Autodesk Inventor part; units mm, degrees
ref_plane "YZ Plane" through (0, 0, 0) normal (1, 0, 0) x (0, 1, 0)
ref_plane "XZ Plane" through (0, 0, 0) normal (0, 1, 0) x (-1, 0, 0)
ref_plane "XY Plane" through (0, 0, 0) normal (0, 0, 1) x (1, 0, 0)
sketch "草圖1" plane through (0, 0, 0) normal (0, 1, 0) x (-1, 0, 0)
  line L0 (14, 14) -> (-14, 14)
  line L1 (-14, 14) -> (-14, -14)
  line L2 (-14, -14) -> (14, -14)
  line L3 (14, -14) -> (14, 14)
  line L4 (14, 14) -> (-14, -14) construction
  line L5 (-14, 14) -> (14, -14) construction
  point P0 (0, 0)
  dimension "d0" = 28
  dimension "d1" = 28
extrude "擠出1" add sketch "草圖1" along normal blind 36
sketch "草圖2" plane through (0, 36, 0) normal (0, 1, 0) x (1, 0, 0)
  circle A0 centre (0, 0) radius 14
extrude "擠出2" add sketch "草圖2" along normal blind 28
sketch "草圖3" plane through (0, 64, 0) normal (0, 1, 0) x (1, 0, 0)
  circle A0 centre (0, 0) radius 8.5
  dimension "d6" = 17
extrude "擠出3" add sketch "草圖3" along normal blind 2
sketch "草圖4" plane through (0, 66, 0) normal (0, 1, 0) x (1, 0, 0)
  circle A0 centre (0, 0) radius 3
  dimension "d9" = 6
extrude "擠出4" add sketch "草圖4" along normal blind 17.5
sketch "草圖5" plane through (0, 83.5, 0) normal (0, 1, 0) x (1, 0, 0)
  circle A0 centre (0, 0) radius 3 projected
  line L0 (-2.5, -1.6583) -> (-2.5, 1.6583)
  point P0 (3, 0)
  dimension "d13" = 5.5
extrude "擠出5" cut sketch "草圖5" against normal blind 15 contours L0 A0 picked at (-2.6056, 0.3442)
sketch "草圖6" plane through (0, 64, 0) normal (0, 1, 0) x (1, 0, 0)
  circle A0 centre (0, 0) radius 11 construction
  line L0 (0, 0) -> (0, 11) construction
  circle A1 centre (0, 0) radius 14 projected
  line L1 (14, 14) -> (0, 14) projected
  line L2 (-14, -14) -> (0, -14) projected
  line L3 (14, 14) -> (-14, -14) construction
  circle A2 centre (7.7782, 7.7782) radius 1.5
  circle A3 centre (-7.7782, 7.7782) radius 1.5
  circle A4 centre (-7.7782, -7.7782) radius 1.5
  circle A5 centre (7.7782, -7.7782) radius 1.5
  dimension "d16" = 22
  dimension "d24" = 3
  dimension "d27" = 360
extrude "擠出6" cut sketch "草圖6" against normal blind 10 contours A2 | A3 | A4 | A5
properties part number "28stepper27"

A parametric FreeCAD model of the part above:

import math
import FreeCAD as App
import Part
import Sketcher
from FreeCAD import Vector
Q = App.Units.Quantity

doc = App.newDocument("Part")
body = doc.addObject("PartDesign::Body", "Body")

# Sketch on XZ plane
sketch1 = doc.addObject("Sketcher::SketchObject", "Sketch")
body.addObject(sketch1)
sketch1.AttachmentSupport = (doc.XZ_Plane, [""])
sketch1.MapMode = "FlatFace"
sketch1.addGeometry([
    Part.LineSegment(Vector(-14, -14, 0), Vector(-14, 14, 0)),
    Part.LineSegment(Vector(-14, 14, 0), Vector(14, 14, 0)),
    Part.LineSegment(Vector(14, 14, 0), Vector(14, -14, 0)),
    Part.LineSegment(Vector(14, -14, 0), Vector(-14, -14, 0)),
], False)
sketch1.addConstraint([
    Sketcher.Constraint("Coincident", 0, 2, 1, 1),
    Sketcher.Constraint("Coincident", 1, 2, 2, 1),
    Sketcher.Constraint("Coincident", 2, 2, 3, 1),
    Sketcher.Constraint("Coincident", 3, 2, 0, 1),
    Sketcher.Constraint("Vertical", 0),
    Sketcher.Constraint("Horizontal", 1),
    Sketcher.Constraint("Vertical", 2),
    Sketcher.Constraint("Horizontal", 3),
    Sketcher.Constraint("Symmetric", 0, 2, 2, 2, -1, 1),
    Sketcher.Constraint("Equal", 3, 0),
    Sketcher.Constraint("DistanceX", 1, 1, 1, 2, Q("28 mm")),
])
pad1 = doc.addObject("PartDesign::Pad", "Pad")
body.addObject(pad1)
pad1.Profile = sketch1
pad1.Length = 36
pad1.Reversed = True

# Sketch on XZ plane
sketch2 = doc.addObject("Sketcher::SketchObject", "Sketch001")
body.addObject(sketch2)
sketch2.AttachmentSupport = (doc.XZ_Plane, [""])
sketch2.MapMode = "FlatFace"
sketch2.AttachmentOffset = App.Placement(Vector(0, 0, -36), App.Rotation())
sketch2.addGeometry(Part.Circle(Vector(0, 0, 0), Vector(0, 0, 1), 14), False)
sketch2.addConstraint([
    Sketcher.Constraint("Coincident", 0, 3, -1, 1),
    Sketcher.Constraint("Diameter", 0, Q("28 mm")),
])
pad2 = doc.addObject("PartDesign::Pad", "Pad001")
body.addObject(pad2)
pad2.Profile = sketch2
pad2.Length = 28
pad2.Reversed = True

# Sketch on XZ plane
sketch3 = doc.addObject("Sketcher::SketchObject", "Sketch002")
body.addObject(sketch3)
sketch3.AttachmentSupport = (doc.XZ_Plane, [""])
sketch3.MapMode = "FlatFace"
sketch3.AttachmentOffset = App.Placement(Vector(0, 0, -64), App.Rotation())
sketch3.addGeometry(Part.Circle(Vector(0, 0, 0), Vector(0, 0, 1), 8), False)
sketch3.addConstraint([
    Sketcher.Constraint("Coincident", 0, 3, -1, 1),
    Sketcher.Constraint("Diameter", 0, Q("17 mm")),
])
pad3 = doc.addObject("PartDesign::Pad", "Pad002")
body.addObject(pad3)
pad3.Profile = sketch3
pad3.Length = 2
pad3.Reversed = True

# Sketch on XZ plane
sketch4 = doc.addObject("Sketcher::SketchObject", "Sketch003")
body.addObject(sketch4)
sketch4.AttachmentSupport = (doc.XZ_Plane, [""])
sketch4.MapMode = "FlatFace"
sketch4.AttachmentOffset = App.Placement(Vector(0, 0, -66), App.Rotation())
sketch4.addGeometry(Part.Circle(Vector(0, 0, 0), Vector(0, 0, 1), 3), False)
sketch4.addConstraint([
    Sketcher.Constraint("Coincident", 0, 3, -1, 1),
    Sketcher.Constraint("Diameter", 0, Q("6 mm")),
])
pad4 = doc.addObject("PartDesign::Pad", "Pad003")
body.addObject(pad4)
pad4.Profile = sketch4
pad4.Length = 17.5
pad4.Reversed = True

# Sketch on XZ plane
sketch5 = doc.addObject("Sketcher::SketchObject", "Sketch004")
body.addObject(sketch5)
sketch5.AttachmentSupport = (doc.XZ_Plane, [""])
sketch5.MapMode = "FlatFace"
sketch5.AttachmentOffset = App.Placement(Vector(0, 0, -83.5), App.Rotation())
sketch5.addGeometry([
    Part.LineSegment(Vector(-2.5, 1.7, 0), Vector(-2.5, -1.7, 0)),
    Part.ArcOfCircle(Part.Circle(Vector(0, 0, 0), Vector(0, 0, 1), 3), math.radians(146), math.radians(214)),
], False)
sketch5.addConstraint([
    Sketcher.Constraint("Coincident", 0, 1, 1, 1),
    Sketcher.Constraint("Coincident", 1, 2, 0, 2),
    Sketcher.Constraint("Vertical", 0),
    Sketcher.Constraint("Coincident", 1, 3, -1, 1),
    Sketcher.Constraint("Radius", 1, Q("3 mm")),
    Sketcher.Constraint("DistanceX", 0, 1, -1, 1, Q("2.5 mm")),
])
pocket1 = doc.addObject("PartDesign::Pocket", "Pocket")
body.addObject(pocket1)
pocket1.Profile = sketch5
pocket1.Length = 15
pocket1.Reversed = True

# Sketch on XZ plane
sketch6 = doc.addObject("Sketcher::SketchObject", "Sketch005")
body.addObject(sketch6)
sketch6.AttachmentSupport = (doc.XZ_Plane, [""])
sketch6.MapMode = "FlatFace"
sketch6.AttachmentOffset = App.Placement(Vector(0, 0, -64), App.Rotation())
sketch6.addGeometry([
    Part.Circle(Vector(7.8, -7.8, 0), Vector(0, 0, 1), 1.5),
    Part.Circle(Vector(-7.8, -7.8, 0), Vector(0, 0, 1), 1.5),
    Part.Circle(Vector(-7.8, 7.8, 0), Vector(0, 0, 1), 1.5),
    Part.Circle(Vector(7.8, 7.8, 0), Vector(0, 0, 1), 1.5),
], False)
sketch6.addConstraint([
    Sketcher.Constraint("Equal", 0, 1),
    Sketcher.Constraint("Equal", 1, 2),
    Sketcher.Constraint("Equal", 2, 3),
    Sketcher.Constraint("Symmetric", 0, 3, 2, 3, -1, 1),
    Sketcher.Constraint("Symmetric", 1, 3, 3, 3, -1, 1),
    Sketcher.Constraint("Symmetric", 0, 3, 1, 3, -2),
    Sketcher.Constraint("Diameter", 0, Q("3 mm")),
    Sketcher.Constraint("DistanceX", -1, 1, 0, 3, Q("7.7782 mm")),
    Sketcher.Constraint("DistanceY", 0, 3, -1, 1, Q("7.7782 mm")),
])
pocket2 = doc.addObject("PartDesign::Pocket", "Pocket001")
body.addObject(pocket2)
pocket2.Profile = sketch6
pocket2.Length = 10
pocket2.Reversed = True

doc.recompute()
